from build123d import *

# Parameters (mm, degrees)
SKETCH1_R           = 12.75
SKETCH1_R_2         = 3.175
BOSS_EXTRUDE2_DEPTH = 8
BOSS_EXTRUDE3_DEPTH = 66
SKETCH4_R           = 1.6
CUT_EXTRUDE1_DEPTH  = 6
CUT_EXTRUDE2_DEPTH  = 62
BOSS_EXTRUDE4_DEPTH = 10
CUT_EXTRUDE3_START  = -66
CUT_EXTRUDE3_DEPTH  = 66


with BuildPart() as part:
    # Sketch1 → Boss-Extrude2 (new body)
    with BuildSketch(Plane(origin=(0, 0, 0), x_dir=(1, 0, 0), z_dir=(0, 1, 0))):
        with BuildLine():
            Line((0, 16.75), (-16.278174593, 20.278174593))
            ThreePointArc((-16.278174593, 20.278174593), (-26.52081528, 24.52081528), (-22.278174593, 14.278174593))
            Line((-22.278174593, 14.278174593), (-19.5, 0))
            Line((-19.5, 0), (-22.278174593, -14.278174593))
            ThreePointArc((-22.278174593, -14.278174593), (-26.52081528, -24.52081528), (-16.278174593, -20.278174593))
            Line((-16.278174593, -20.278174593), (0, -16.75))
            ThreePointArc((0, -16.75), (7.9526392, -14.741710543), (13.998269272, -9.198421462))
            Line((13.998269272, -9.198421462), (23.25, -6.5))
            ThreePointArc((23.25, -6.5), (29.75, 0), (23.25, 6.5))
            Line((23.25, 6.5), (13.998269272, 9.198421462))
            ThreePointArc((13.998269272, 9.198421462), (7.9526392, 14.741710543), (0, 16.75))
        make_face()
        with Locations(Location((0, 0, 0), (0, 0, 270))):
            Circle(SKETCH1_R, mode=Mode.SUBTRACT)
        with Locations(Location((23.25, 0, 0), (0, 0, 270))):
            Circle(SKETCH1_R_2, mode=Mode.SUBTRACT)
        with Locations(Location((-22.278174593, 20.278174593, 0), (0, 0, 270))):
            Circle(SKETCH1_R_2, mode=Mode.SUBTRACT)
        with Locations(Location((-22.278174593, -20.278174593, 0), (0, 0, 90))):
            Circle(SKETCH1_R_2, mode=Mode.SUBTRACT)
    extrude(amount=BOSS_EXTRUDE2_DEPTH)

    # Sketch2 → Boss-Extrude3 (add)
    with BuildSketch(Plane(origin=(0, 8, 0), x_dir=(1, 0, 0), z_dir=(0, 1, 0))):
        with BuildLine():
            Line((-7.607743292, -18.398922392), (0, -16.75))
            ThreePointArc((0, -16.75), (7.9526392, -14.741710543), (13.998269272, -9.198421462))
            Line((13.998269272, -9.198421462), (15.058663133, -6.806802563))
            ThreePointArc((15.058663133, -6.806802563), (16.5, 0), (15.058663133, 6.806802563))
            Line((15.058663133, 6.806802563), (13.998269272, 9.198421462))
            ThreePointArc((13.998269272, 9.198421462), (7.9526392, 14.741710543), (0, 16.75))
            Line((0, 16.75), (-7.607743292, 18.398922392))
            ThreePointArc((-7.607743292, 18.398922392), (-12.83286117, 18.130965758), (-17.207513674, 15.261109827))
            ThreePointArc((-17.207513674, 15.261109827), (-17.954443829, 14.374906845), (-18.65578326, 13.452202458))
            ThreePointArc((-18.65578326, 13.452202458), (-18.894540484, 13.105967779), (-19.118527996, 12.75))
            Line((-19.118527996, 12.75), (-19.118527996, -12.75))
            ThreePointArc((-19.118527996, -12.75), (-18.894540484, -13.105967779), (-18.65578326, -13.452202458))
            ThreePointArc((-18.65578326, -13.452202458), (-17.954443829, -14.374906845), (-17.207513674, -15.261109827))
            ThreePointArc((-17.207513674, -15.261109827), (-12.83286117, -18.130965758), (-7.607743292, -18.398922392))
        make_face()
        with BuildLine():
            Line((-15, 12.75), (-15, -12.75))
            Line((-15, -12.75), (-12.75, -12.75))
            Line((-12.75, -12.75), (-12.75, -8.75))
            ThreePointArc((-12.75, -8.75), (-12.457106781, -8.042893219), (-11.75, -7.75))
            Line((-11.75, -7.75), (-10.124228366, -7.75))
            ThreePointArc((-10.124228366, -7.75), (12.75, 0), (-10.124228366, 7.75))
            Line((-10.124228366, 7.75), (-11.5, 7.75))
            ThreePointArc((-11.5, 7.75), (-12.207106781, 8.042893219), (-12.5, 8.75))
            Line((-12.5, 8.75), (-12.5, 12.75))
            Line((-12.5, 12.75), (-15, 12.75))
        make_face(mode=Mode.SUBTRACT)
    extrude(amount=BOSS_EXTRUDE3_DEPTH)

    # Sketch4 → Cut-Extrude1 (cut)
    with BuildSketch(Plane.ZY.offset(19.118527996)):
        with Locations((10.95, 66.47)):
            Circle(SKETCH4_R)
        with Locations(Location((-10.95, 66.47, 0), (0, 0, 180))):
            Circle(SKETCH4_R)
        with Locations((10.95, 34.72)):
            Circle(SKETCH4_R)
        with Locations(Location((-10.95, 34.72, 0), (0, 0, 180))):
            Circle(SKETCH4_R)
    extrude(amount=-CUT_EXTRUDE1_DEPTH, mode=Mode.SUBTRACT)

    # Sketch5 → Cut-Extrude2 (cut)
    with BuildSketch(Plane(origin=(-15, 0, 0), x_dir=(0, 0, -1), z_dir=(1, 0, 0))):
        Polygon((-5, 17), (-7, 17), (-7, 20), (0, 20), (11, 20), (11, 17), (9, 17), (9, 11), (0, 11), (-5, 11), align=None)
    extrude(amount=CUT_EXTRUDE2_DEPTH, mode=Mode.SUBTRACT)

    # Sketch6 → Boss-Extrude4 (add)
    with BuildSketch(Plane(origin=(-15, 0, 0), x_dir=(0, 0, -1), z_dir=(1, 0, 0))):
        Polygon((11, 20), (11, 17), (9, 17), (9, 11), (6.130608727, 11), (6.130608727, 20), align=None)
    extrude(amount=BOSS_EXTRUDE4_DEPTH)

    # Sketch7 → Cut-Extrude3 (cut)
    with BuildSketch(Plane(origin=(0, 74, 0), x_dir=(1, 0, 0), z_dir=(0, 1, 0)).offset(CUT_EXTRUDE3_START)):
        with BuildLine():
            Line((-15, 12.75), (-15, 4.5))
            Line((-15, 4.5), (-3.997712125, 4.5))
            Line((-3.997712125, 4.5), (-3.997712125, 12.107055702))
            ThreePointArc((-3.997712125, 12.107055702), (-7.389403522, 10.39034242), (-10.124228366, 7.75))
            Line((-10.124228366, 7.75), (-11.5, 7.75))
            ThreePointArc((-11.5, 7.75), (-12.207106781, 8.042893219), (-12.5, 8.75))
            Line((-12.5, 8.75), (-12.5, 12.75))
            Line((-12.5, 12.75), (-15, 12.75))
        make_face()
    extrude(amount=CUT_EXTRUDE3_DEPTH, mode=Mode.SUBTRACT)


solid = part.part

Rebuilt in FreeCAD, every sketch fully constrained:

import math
import FreeCAD as App
import Part
import Sketcher

V = App.Vector


def add_polygon(sketch, points):
    """Adds a closed chain of lines whose ends are joined by coincident constraints."""
    first, n = sketch.GeometryCount, len(points)
    for a, b in zip(points, points[1:] + points[:1]):
        sketch.addGeometry(Part.LineSegment(App.Vector(*a, 0), App.Vector(*b, 0)), False)
    for i in range(n):
        sketch.addConstraint(Sketcher.Constraint("Coincident", first + i, 2, first + (i + 1) % n, 1))

doc = App.newDocument("Part")
body = doc.addObject("PartDesign::Body", "Body")

sketch1 = doc.addObject("Sketcher::SketchObject", "Sketch")
body.addObject(sketch1)
sketch1.AttachmentSupport = (doc.XZ_Plane, [""])
sketch1.MapMode = "FlatFace"
sketch1.addGeometry([
    Part.LineSegment(V(0, -16.75, 0), V(-16.278175, -20.278175, 0)),
    Part.ArcOfCircle(Part.Circle(V(-22.278175, -20.278175, 0), V(0, 0, 1), 6), math.radians(90), math.radians(360)),
    Part.LineSegment(V(-22.278175, -14.278175, 0), V(-19.5, 0, 0)),
    Part.LineSegment(V(-19.5, 0, 0), V(-22.278175, 14.278175, 0)),
    Part.ArcOfCircle(Part.Circle(V(-22.278175, 20.278175, 0), V(0, 0, 1), 6), math.radians(0), math.radians(270)),
    Part.LineSegment(V(-16.278175, 20.278175, 0), V(0, 16.75, 0)),
    Part.ArcOfCircle(Part.Circle(V(0, 0, 0), V(0, 0, 1), 16.75), math.radians(33.30937), math.radians(90)),
    Part.LineSegment(V(13.998269, 9.198421, 0), V(23.25, 6.5, 0)),
    Part.ArcOfCircle(Part.Circle(V(23.25, 0, 0), V(0, 0, 1), 6.5), math.radians(-90), math.radians(90)),
    Part.LineSegment(V(23.25, -6.5, 0), V(13.998269, -9.198421, 0)),
    Part.ArcOfCircle(Part.Circle(V(0, 0, 0), V(0, 0, 1), 16.75), math.radians(-90), math.radians(-33.30937)),
    Part.Circle(V(-22.278175, 20.278175, 0), V(0, 0, 1), 3.175),
    Part.Circle(V(0, 0, 0), V(0, 0, 1), 12.75),
    Part.Circle(V(-22.278175, -20.278175, 0), V(0, 0, 1), 3.175),
    Part.Circle(V(23.25, 0, 0), V(0, 0, 1), 3.175),
], False)
sketch1.addConstraint([
    Sketcher.Constraint("Coincident", 0, 2, 1, 2),
    Sketcher.Constraint("Coincident", 1, 1, 2, 1),
    Sketcher.Constraint("Coincident", 2, 2, 3, 1),
    Sketcher.Constraint("Coincident", 3, 2, 4, 2),
    Sketcher.Constraint("Coincident", 4, 1, 5, 1),
    Sketcher.Constraint("Coincident", 5, 2, 6, 2),
    Sketcher.Constraint("Coincident", 6, 1, 7, 1),
    Sketcher.Constraint("Coincident", 7, 2, 8, 2),
    Sketcher.Constraint("Coincident", 8, 1, 9, 1),
    Sketcher.Constraint("Coincident", 9, 2, 10, 2),
    Sketcher.Constraint("Coincident", 10, 1, 0, 1),
    Sketcher.Constraint("Coincident", 6, 3, -1, 1),
    Sketcher.Constraint("Coincident", 10, 3, -1, 1),
    Sketcher.Constraint("Coincident", 12, 3, -1, 1),
    Sketcher.Constraint("Coincident", 11, 3, 4, 3),
    Sketcher.Constraint("Coincident", 13, 3, 1, 3),
    Sketcher.Constraint("Coincident", 14, 3, 8, 3),
    Sketcher.Constraint("Equal", 1, 4),
    Sketcher.Constraint("Equal", 6, 10),
    Sketcher.Constraint("Equal", 11, 13),
    Sketcher.Constraint("Equal", 13, 14),
    Sketcher.Constraint("Symmetric", 1, 3, 4, 3, -1),
    Sketcher.Constraint("Symmetric", 7, 2, 8, 1, -1),
    Sketcher.Constraint("PointOnObject", 2, 2, -1),
    Sketcher.Constraint("PointOnObject", 5, 2, -2),
    Sketcher.Constraint("PointOnObject", 10, 1, -2),
    Sketcher.Constraint("Horizontal", 13, 3, 0, 2),
    Sketcher.Constraint("Horizontal", 11, 3, 4, 1),
    Sketcher.Constraint("Vertical", 13, 3, 1, 1),
    Sketcher.Constraint("Vertical", 1, 1, 3, 2),
    Sketcher.Constraint("Vertical", 14, 3, 7, 2),
    Sketcher.Constraint("Vertical", 6, 1, 9, 2),
    Sketcher.Constraint("Radius", 1, 6.0),
    Sketcher.Constraint("Diameter", 12, 25.5),
    Sketcher.Constraint("Radius", 8, 6.5),
    Sketcher.Constraint("Diameter", 11, 6.35),
    Sketcher.Constraint("Radius", 6, 16.75),
    Sketcher.Constraint("DistanceX", 2, 2, -1, 1, 19.5),
    Sketcher.Constraint("DistanceX", -1, 1, 8, 3, 23.25),
    Sketcher.Constraint("Distance", 0, 16.65614),
    Sketcher.Constraint("Distance", 7, 9.63722),
    Sketcher.Constraint("DistanceY", 1, 3, 4, 3, 40.556349),
])
pad1 = doc.addObject("PartDesign::Pad", "Pad")
body.addObject(pad1)
pad1.Profile = sketch1
pad1.Length = 8
pad1.Reversed = True

sketch2 = doc.addObject("Sketcher::SketchObject", "Sketch001")
body.addObject(sketch2)
sketch2.AttachmentSupport = (doc.XZ_Plane, [""])
sketch2.MapMode = "FlatFace"
sketch2.AttachmentOffset = App.Placement(V(0, 0, -8), App.Rotation())
sketch2.addGeometry([
    Part.LineSegment(V(-7.607743, 18.398922, 0), V(0, 16.75, 0)),
    Part.ArcOfCircle(Part.Circle(V(0, 0, 0), V(0, 0, 1), 16.75), math.radians(33.30937), math.radians(90)),
    Part.LineSegment(V(13.998269, 9.198421, 0), V(15.058663, 6.806803, 0)),
    Part.ArcOfCircle(Part.Circle(V(-0.293442, 0, 0), V(0, 0, 1), 16.793442), math.radians(-23.911498), math.radians(23.911498)),
    Part.LineSegment(V(15.058663, -6.806803, 0), V(13.998269, -9.198421, 0)),
    Part.ArcOfCircle(Part.Circle(V(0, 0, 0), V(0, 0, 1), 16.75), math.radians(-90), math.radians(-33.30937)),
    Part.LineSegment(V(0, -16.75, 0), V(-7.607743, -18.398922, 0)),
    Part.ArcOfCircle(Part.Circle(V(-9.725986, -8.625845, 0), V(0, 0, 1), 10), math.radians(-138.430617), math.radians(-77.770719)),
    Part.ArcOfCircle(Part.Circle(V(0, 0, 0), V(0, 0, 1), 23), math.radians(-144.205602), math.radians(-138.430617)),
    Part.ArcOfCircle(Part.Circle(V(-10.544573, -7.603419, 0), V(0, 0, 1), 10), math.radians(-149.025394), math.radians(-144.205602)),
    Part.LineSegment(V(-19.118528, -12.75, 0), V(-19.118528, 12.75, 0)),
    Part.ArcOfCircle(Part.Circle(V(-10.544573, 7.603419, 0), V(0, 0, 1), 10), math.radians(144.205602), math.radians(149.025394)),
    Part.ArcOfCircle(Part.Circle(V(0, 0, 0), V(0, 0, 1), 23), math.radians(138.430617), math.radians(144.205602)),
    Part.ArcOfCircle(Part.Circle(V(-9.725986, 8.625845, 0), V(0, 0, 1), 10), math.radians(77.770719), math.radians(138.430617)),
    Part.LineSegment(V(-15, 12.75, 0), V(-15, -12.75, 0)),
    Part.LineSegment(V(-15, -12.75, 0), V(-12.5, -12.75, 0)),
    Part.LineSegment(V(-12.5, -12.75, 0), V(-12.5, -8.75, 0)),
    Part.ArcOfCircle(Part.Circle(V(-11.5, -8.75, 0), V(0, 0, 1), 1), math.radians(90), math.radians(180)),
    Part.LineSegment(V(-11.5, -7.75, 0), V(-10.124228, -7.75, 0)),
    Part.ArcOfCircle(Part.Circle(V(0, 0, 0), V(0, 0, 1), 12.75), math.radians(-142.566289), math.radians(142.566289)),
    Part.LineSegment(V(-10.124228, 7.75, 0), V(-11.75, 7.75, 0)),
    Part.ArcOfCircle(Part.Circle(V(-11.75, 8.75, 0), V(0, 0, 1), 1), math.radians(-180), math.radians(-90)),
    Part.LineSegment(V(-12.75, 8.75, 0), V(-12.75, 12.75, 0)),
    Part.LineSegment(V(-12.75, 12.75, 0), V(-15, 12.75, 0)),
], False)
sketch2.addConstraint([
    Sketcher.Constraint("Coincident", 0, 2, 1, 2),
    Sketcher.Constraint("Coincident", 1, 1, 2, 1),
    Sketcher.Constraint("Tangent", 2, 2, 3, 2),
    Sketcher.Constraint("Tangent", 3, 1, 4, 1),
    Sketcher.Constraint("Coincident", 4, 2, 5, 2),
    Sketcher.Constraint("Coincident", 5, 1, 6, 1),
    Sketcher.Constraint("Tangent", 6, 2, 7, 2),
    Sketcher.Constraint("Tangent", 7, 1, 8, 2),
    Sketcher.Constraint("Tangent", 8, 1, 9, 2),
    Sketcher.Constraint("Coincident", 9, 1, 10, 1),
    Sketcher.Constraint("Coincident", 10, 2, 11, 2),
    Sketcher.Constraint("Tangent", 11, 1, 12, 2),
    Sketcher.Constraint("Tangent", 12, 1, 13, 2),
    Sketcher.Constraint("Tangent", 13, 1, 0, 1),
    Sketcher.Constraint("Coincident", 14, 2, 15, 1),
    Sketcher.Constraint("Coincident", 15, 2, 16, 1),
    Sketcher.Constraint("Tangent", 16, 2, 17, 2),
    Sketcher.Constraint("Tangent", 17, 1, 18, 1),
    Sketcher.Constraint("Coincident", 18, 2, 19, 1),
    Sketcher.Constraint("Coincident", 19, 2, 20, 1),
    Sketcher.Constraint("Tangent", 20, 2, 21, 2),
    Sketcher.Constraint("Tangent", 21, 1, 22, 1),
    Sketcher.Constraint("Coincident", 22, 2, 23, 1),
    Sketcher.Constraint("Coincident", 23, 2, 14, 1),
    Sketcher.Constraint("Vertical", 10),
    Sketcher.Constraint("Vertical", 14),
    Sketcher.Constraint("Horizontal", 15),
    Sketcher.Constraint("Vertical", 16),
    Sketcher.Constraint("Horizontal", 18),
    Sketcher.Constraint("Horizontal", 20),
    Sketcher.Constraint("Vertical", 22),
    Sketcher.Constraint("Horizontal", 23),
    Sketcher.Constraint("Coincident", 1, 3, -1, 1),
    Sketcher.Constraint("Coincident", 5, 3, -1, 1),
    Sketcher.Constraint("Coincident", 8, 3, -1, 1),
    Sketcher.Constraint("Coincident", 12, 3, -1, 1),
    Sketcher.Constraint("Coincident", 19, 3, -1, 1),
    Sketcher.Constraint("Equal", 1, 5),
    Sketcher.Constraint("Equal", 7, 9),
    Sketcher.Constraint("Equal", 9, 11),
    Sketcher.Constraint("Equal", 8, 12),
    Sketcher.Constraint("Equal", 11, 13),
    Sketcher.Constraint("Equal", 17, 21),
    Sketcher.Constraint("Symmetric", 2, 2, 3, 1, -1),
    Sketcher.Constraint("Symmetric", 6, 2, 13, 1, -1),
    Sketcher.Constraint("PointOnObject", 0, 2, -2),
    Sketcher.Constraint("Horizontal", 9, 1, 14, 2),
    Sketcher.Constraint("Horizontal", 10, 2, 22, 2),
    Sketcher.Constraint("Vertical", 9, 3, 11, 3),
    Sketcher.Constraint("Vertical", 18, 2, 19, 2),
    Sketcher.Constraint("Radius", 7, 10.0),
    Sketcher.Constraint("Radius", 8, 23.0),
    Sketcher.Constraint("Radius", 17, 1.0),
    Sketcher.Constraint("DistanceY", 16, 1, 16, 2, 4.0),
    Sketcher.Constraint("Radius", 1, 16.75),
    Sketcher.Constraint("Radius", 19, 12.75),
    Sketcher.Constraint("DistanceX", 15, 1, 15, 2, 2.5),
    Sketcher.Constraint("DistanceY", 10, 1, 10, 2, 25.5),
    Sketcher.Constraint("DistanceX", 14, 2, -1, 1, 15.0),
    Sketcher.Constraint("DistanceX", 23, 2, 23, 1, 2.25),
    Sketcher.Constraint("Radius", 3, 16.793442),
    Sketcher.Constraint("DistanceX", 6, 2, 3, 3, 7.314302),
    Sketcher.Constraint("DistanceX", 10, 2, 19, 2, 8.9943),
    Sketcher.Constraint("Distance", 0, 7.784388),
    Sketcher.Constraint("DistanceX", -1, 1, 1, 1, 13.998269),
])
pad2 = doc.addObject("PartDesign::Pad", "Pad001")
body.addObject(pad2)
pad2.Profile = sketch2
pad2.Length = 66
pad2.Reversed = True

sketch3 = doc.addObject("Sketcher::SketchObject", "Sketch002")
body.addObject(sketch3)
sketch3.AttachmentSupport = (doc.YZ_Plane, [""])
sketch3.MapMode = "FlatFace"
sketch3.AttachmentOffset = App.Placement(V(0, 0, -19.118528), App.Rotation())
sketch3.addGeometry([
    Part.Circle(V(66.47, 10.95, 0), V(0, 0, 1), 1.6),
    Part.Circle(V(66.47, -10.95, 0), V(0, 0, 1), 1.6),
    Part.Circle(V(34.72, 10.95, 0), V(0, 0, 1), 1.6),
    Part.Circle(V(34.72, -10.95, 0), V(0, 0, 1), 1.6),
], False)
sketch3.addConstraint([
    Sketcher.Constraint("Equal", 0, 1),
    Sketcher.Constraint("Equal", 1, 2),
    Sketcher.Constraint("Equal", 2, 3),
    Sketcher.Constraint("Symmetric", 0, 3, 1, 3, -1),
    Sketcher.Constraint("Symmetric", 2, 3, 3, 3, -1),
    Sketcher.Constraint("Horizontal", 0, 3, 2, 3),
    Sketcher.Constraint("Diameter", 0, 3.2),
    Sketcher.Constraint("DistanceY", 1, 3, 0, 3, 21.9),
    Sketcher.Constraint("DistanceX", -1, 1, 0, 3, 66.47),
    Sketcher.Constraint("DistanceX", -1, 1, 2, 3, 34.72),
])
pocket1 = doc.addObject("PartDesign::Pocket", "Pocket")
body.addObject(pocket1)
pocket1.Profile = sketch3
pocket1.Length = 6
pocket1.Reversed = True

sketch4 = doc.addObject("Sketcher::SketchObject", "Sketch003")
body.addObject(sketch4)
sketch4.AttachmentSupport = (doc.YZ_Plane, [""])
sketch4.MapMode = "FlatFace"
sketch4.AttachmentOffset = App.Placement(V(0, 0, -15), App.Rotation())
add_polygon(sketch4, [(17, 7), (17, 5), (11, 5), (11, -9), (17, -9), (17, -11), (20, -11), (20, 7)])
sketch4.addConstraint([
    Sketcher.Constraint("Vertical", 0),
    Sketcher.Constraint("Horizontal", 1),
    Sketcher.Constraint("Vertical", 2),
    Sketcher.Constraint("Horizontal", 3),
    Sketcher.Constraint("Vertical", 4),
    Sketcher.Constraint("Horizontal", 5),
    Sketcher.Constraint("Vertical", 6),
    Sketcher.Constraint("Horizontal", 7),
    Sketcher.Constraint("Vertical", 0, 2, 3, 2),
    Sketcher.Constraint("Equal", 0, 4),
    Sketcher.Constraint("DistanceX", 1, 2, 1, 1, 6.0),
    Sketcher.Constraint("DistanceX", 5, 1, 5, 2, 3.0),
    Sketcher.Constraint("DistanceY", 0, 2, 0, 1, 2.0),
    Sketcher.Constraint("DistanceY", 2, 2, 2, 1, 14.0),
    Sketcher.Constraint("DistanceX", -1, 1, 0, 2, 17.0),
    Sketcher.Constraint("DistanceY", -1, 1, 0, 2, 5.0),
])
pocket2 = doc.addObject("PartDesign::Pocket", "Pocket001")
body.addObject(pocket2)
pocket2.Profile = sketch4
pocket2.Length = 62
pocket2.Reversed = True

sketch5 = doc.addObject("Sketcher::SketchObject", "Sketch004")
body.addObject(sketch5)
sketch5.AttachmentSupport = (doc.YZ_Plane, [""])
sketch5.MapMode = "FlatFace"
sketch5.AttachmentOffset = App.Placement(V(0, 0, -15), App.Rotation())
add_polygon(sketch5, [(17, -11), (20, -11), (20, -6.130609), (11, -6.130609), (11, -9), (17, -9)])
sketch5.addConstraint([
    Sketcher.Constraint("Horizontal", 0),
    Sketcher.Constraint("Vertical", 1),
    Sketcher.Constraint("Horizontal", 2),
    Sketcher.Constraint("Vertical", 3),
    Sketcher.Constraint("Horizontal", 4),
    Sketcher.Constraint("Vertical", 5),
    Sketcher.Constraint("DistanceX", 0, 1, 0, 2, 3.0),
    Sketcher.Constraint("DistanceX", 2, 2, 2, 1, 9.0),
    Sketcher.Constraint("DistanceY", 5, 2, 5, 1, 2.0),
    Sketcher.Constraint("DistanceX", -1, 1, 0, 2, 20.0),
    Sketcher.Constraint("DistanceY", 0, 2, -1, 1, 11.0),
    Sketcher.Constraint("DistanceY", 1, 1, 1, 2, 4.869391),
])
pad3 = doc.addObject("PartDesign::Pad", "Pad002")
body.addObject(pad3)
pad3.Profile = sketch5
pad3.Length = 10

sketch6 = doc.addObject("Sketcher::SketchObject", "Sketch005")
body.addObject(sketch6)
sketch6.AttachmentSupport = (doc.XZ_Plane, [""])
sketch6.MapMode = "FlatFace"
sketch6.AttachmentOffset = App.Placement(V(0, 0, -8), App.Rotation())
sketch6.addGeometry([
    Part.LineSegment(V(-15, -12.75, 0), V(-15, -4.5, 0)),
    Part.LineSegment(V(-15, -4.5, 0), V(-3.997712, -4.5, 0)),
    Part.LineSegment(V(-3.997712, -4.5, 0), V(-3.997712, -12.107056, 0)),
    Part.ArcOfCircle(Part.Circle(V(0, 0, 0), V(0, 0, 1), 12.75), math.radians(-142.566289), math.radians(-108.273062)),
    Part.LineSegment(V(-10.124228, -7.75, 0), V(-11.5, -7.75, 0)),
    Part.ArcOfCircle(Part.Circle(V(-11.5, -8.75, 0), V(0, 0, 1), 1), math.radians(90), math.radians(180)),
    Part.LineSegment(V(-12.5, -8.75, 0), V(-12.5, -12.75, 0)),
    Part.LineSegment(V(-12.5, -12.75, 0), V(-15, -12.75, 0)),
], False)
sketch6.addConstraint([
    Sketcher.Constraint("Coincident", 0, 2, 1, 1),
    Sketcher.Constraint("Coincident", 1, 2, 2, 1),
    Sketcher.Constraint("Coincident", 2, 2, 3, 2),
    Sketcher.Constraint("Coincident", 3, 1, 4, 1),
    Sketcher.Constraint("Tangent", 4, 2, 5, 1),
    Sketcher.Constraint("Tangent", 5, 2, 6, 1),
    Sketcher.Constraint("Coincident", 6, 2, 7, 1),
    Sketcher.Constraint("Coincident", 7, 2, 0, 1),
    Sketcher.Constraint("Vertical", 0),
    Sketcher.Constraint("Horizontal", 1),
    Sketcher.Constraint("Vertical", 2),
    Sketcher.Constraint("Horizontal", 4),
    Sketcher.Constraint("Vertical", 6),
    Sketcher.Constraint("Horizontal", 7),
    Sketcher.Constraint("Coincident", 3, 3, -1, 1),
    Sketcher.Constraint("Radius", 5, 1.0),
    Sketcher.Constraint("DistanceY", 6, 2, 6, 1, 4.0),
    Sketcher.Constraint("Radius", 3, 12.75),
    Sketcher.Constraint("DistanceX", 7, 2, 7, 1, 2.5),
    Sketcher.Constraint("DistanceX", 0, 2, -1, 1, 15.0),
    Sketcher.Constraint("DistanceY", 0, 1, 0, 2, 8.25),
    Sketcher.Constraint("DistanceY", 0, 2, -1, 1, 4.5),
    Sketcher.Constraint("DistanceX", 1, 1, 1, 2, 11.002288),
])
pocket3 = doc.addObject("PartDesign::Pocket", "Pocket002")
body.addObject(pocket3)
pocket3.Profile = sketch6
pocket3.Length = 66

doc.recompute()
